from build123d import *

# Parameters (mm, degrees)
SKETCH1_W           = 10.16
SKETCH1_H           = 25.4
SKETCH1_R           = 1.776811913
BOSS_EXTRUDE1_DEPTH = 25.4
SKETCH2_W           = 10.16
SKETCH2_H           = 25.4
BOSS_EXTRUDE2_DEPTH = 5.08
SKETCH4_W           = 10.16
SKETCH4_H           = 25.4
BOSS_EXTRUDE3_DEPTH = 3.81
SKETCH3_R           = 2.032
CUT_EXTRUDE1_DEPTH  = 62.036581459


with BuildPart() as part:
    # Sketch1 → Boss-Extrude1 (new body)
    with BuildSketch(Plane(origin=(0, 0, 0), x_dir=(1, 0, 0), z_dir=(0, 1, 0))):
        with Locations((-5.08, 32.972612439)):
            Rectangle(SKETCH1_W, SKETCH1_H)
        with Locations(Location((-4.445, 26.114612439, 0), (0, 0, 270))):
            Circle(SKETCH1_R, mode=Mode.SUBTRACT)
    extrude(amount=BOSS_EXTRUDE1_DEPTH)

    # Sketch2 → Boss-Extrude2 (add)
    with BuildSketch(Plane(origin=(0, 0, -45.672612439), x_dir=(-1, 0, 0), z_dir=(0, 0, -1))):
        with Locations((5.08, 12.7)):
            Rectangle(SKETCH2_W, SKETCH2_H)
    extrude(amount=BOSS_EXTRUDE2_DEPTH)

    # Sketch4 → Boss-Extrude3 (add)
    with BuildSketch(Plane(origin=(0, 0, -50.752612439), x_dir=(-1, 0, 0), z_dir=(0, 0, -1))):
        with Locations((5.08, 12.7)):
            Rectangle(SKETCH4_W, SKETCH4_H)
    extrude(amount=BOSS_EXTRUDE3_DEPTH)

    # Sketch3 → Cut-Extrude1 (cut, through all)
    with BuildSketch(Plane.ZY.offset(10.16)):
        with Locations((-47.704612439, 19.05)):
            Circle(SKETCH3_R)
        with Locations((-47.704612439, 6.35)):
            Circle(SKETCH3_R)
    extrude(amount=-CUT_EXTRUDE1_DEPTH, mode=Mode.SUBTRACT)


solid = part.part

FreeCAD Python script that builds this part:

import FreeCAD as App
import Part
import Sketcher
from FreeCAD import Vector
Q = App.Units.Quantity

doc = App.newDocument("Part")
body = doc.addObject("PartDesign::Body", "Body")

sketch1 = body.newObject("Sketcher::SketchObject", "Sketch")
sketch1.AttachmentSupport = (doc.getObject("XZ_Plane"), [""])
sketch1.MapMode = "FlatFace"
sketch1.addGeometry([
    Part.LineSegment(Vector(-10.2, -45.7, 0), Vector(-10.2, -20.3, 0)),
    Part.LineSegment(Vector(-10.2, -20.3, 0), Vector(0, -20.3, 0)),
    Part.LineSegment(Vector(0, -20.3, 0), Vector(0, -45.7, 0)),
    Part.LineSegment(Vector(0, -45.7, 0), Vector(-10.2, -45.7, 0)),
    Part.Circle(Vector(-4.4, -26.1, 0), Vector(0, 0, 1), 1.8),
], False)
sketch1.addConstraint([
    Sketcher.Constraint("Coincident", 0, 2, 1, 1),
    Sketcher.Constraint("Coincident", 1, 2, 2, 1),
    Sketcher.Constraint("Coincident", 2, 2, 3, 1),
    Sketcher.Constraint("Coincident", 3, 2, 0, 1),
    Sketcher.Constraint("Vertical", 0),
    Sketcher.Constraint("Horizontal", 1),
    Sketcher.Constraint("Vertical", 2),
    Sketcher.Constraint("Horizontal", 3),
    Sketcher.Constraint("PointOnObject", 1, 2, -2),
    Sketcher.Constraint("DistanceY", 0, 1, 0, 2, Q("1 in")),
    Sketcher.Constraint("DistanceX", 1, 1, 1, 2, Q("0.4 in")),
    Sketcher.Constraint("DistanceY", 4, 3, 0, 2, Q("0.23 in")),
    Sketcher.Constraint("DistanceX", 4, 3, -1, 1, Q("0.175 in")),
    Sketcher.Constraint("Diameter", 4, Q("3.553624 mm")),
    Sketcher.Constraint("DistanceY", 4, 3, -1, 1, Q("26.114612 mm")),
])
pad1 = body.newObject("PartDesign::Pad", "Pad")
pad1.Profile = sketch1
pad1.Length = Q("1 in")
pad1.Reversed = True

sketch2 = body.newObject("Sketcher::SketchObject", "Sketch001")
sketch2.AttachmentSupport = (doc.getObject("XY_Plane"), [""])
sketch2.MapMode = "FlatFace"
sketch2.AttachmentOffset = App.Placement(Vector(0, 0, -45.672612), App.Rotation())
sketch2.addGeometry([
    Part.LineSegment(Vector(0, 25, 0), Vector(0, 0, 0)),
    Part.LineSegment(Vector(0, 0, 0), Vector(-10, 0, 0)),
    Part.LineSegment(Vector(-10, 0, 0), Vector(-10, 25, 0)),
    Part.LineSegment(Vector(-10, 25, 0), Vector(0, 25, 0)),
], False)
sketch2.addConstraint([
    Sketcher.Constraint("Coincident", 0, 2, 1, 1),
    Sketcher.Constraint("Coincident", 1, 2, 2, 1),
    Sketcher.Constraint("Coincident", 2, 2, 3, 1),
    Sketcher.Constraint("Coincident", 3, 2, 0, 1),
    Sketcher.Constraint("Vertical", 0),
    Sketcher.Constraint("Horizontal", 1),
    Sketcher.Constraint("Vertical", 2),
    Sketcher.Constraint("Horizontal", 3),
    Sketcher.Constraint("Coincident", 0, 2, -1, 1),
    Sketcher.Constraint("DistanceY", 0, 2, 0, 1, Q("1 in")),
    Sketcher.Constraint("DistanceX", 1, 2, 1, 1, Q("0.4 in")),
])
pad2 = body.newObject("PartDesign::Pad", "Pad001")
pad2.Profile = sketch2
pad2.Length = Q("0.2 in")
pad2.Reversed = True

sketch3 = body.newObject("Sketcher::SketchObject", "Sketch002")
sketch3.AttachmentSupport = (doc.getObject("XY_Plane"), [""])
sketch3.MapMode = "FlatFace"
sketch3.AttachmentOffset = App.Placement(Vector(0, 0, -50.752612), App.Rotation())
sketch3.addGeometry([
    Part.LineSegment(Vector(0, 25, 0), Vector(0, 0, 0)),
    Part.LineSegment(Vector(0, 0, 0), Vector(-10, 0, 0)),
    Part.LineSegment(Vector(-10, 0, 0), Vector(-10, 25, 0)),
    Part.LineSegment(Vector(-10, 25, 0), Vector(0, 25, 0)),
], False)
sketch3.addConstraint([
    Sketcher.Constraint("Coincident", 0, 2, 1, 1),
    Sketcher.Constraint("Coincident", 1, 2, 2, 1),
    Sketcher.Constraint("Coincident", 2, 2, 3, 1),
    Sketcher.Constraint("Coincident", 3, 2, 0, 1),
    Sketcher.Constraint("Vertical", 0),
    Sketcher.Constraint("Horizontal", 1),
    Sketcher.Constraint("Vertical", 2),
    Sketcher.Constraint("Horizontal", 3),
    Sketcher.Constraint("Coincident", 0, 2, -1, 1),
    Sketcher.Constraint("DistanceY", 0, 2, 0, 1, Q("1 in")),
    Sketcher.Constraint("DistanceX", 1, 2, 1, 1, Q("0.4 in")),
])
pad3 = body.newObject("PartDesign::Pad", "Pad002")
pad3.Profile = sketch3
pad3.Length = Q("0.15 in")
pad3.Reversed = True

sketch4 = body.newObject("Sketcher::SketchObject", "Sketch003")
sketch4.AttachmentSupport = (doc.getObject("YZ_Plane"), [""])
sketch4.MapMode = "FlatFace"
sketch4.AttachmentOffset = App.Placement(Vector(0, 0, -0.4 * 25.4), App.Rotation())
sketch4.addGeometry([
    Part.Circle(Vector(19.1, -47.7, 0), Vector(0, 0, 1), 2),
    Part.Circle(Vector(6.3, -47.7, 0), Vector(0, 0, 1), 2),
], False)
sketch4.addConstraint([
    Sketcher.Constraint("Equal", 0, 1),
    Sketcher.Constraint("Horizontal", 0, 3, 1, 3),
    Sketcher.Constraint("Diameter", 0, Q("0.16 in")),
    Sketcher.Constraint("DistanceX", 1, 3, 0, 3, Q("0.5 in")),
    Sketcher.Constraint("DistanceX", -1, 1, 0, 3, Q("0.75 in")),
    Sketcher.Constraint("DistanceY", 0, 3, -1, 1, Q("47.704612 mm")),
])
pocket1 = body.newObject("PartDesign::Pocket", "Pocket")
pocket1.Profile = sketch4
pocket1.Type = "ThroughAll"
pocket1.Reversed = True

doc.recompute()
